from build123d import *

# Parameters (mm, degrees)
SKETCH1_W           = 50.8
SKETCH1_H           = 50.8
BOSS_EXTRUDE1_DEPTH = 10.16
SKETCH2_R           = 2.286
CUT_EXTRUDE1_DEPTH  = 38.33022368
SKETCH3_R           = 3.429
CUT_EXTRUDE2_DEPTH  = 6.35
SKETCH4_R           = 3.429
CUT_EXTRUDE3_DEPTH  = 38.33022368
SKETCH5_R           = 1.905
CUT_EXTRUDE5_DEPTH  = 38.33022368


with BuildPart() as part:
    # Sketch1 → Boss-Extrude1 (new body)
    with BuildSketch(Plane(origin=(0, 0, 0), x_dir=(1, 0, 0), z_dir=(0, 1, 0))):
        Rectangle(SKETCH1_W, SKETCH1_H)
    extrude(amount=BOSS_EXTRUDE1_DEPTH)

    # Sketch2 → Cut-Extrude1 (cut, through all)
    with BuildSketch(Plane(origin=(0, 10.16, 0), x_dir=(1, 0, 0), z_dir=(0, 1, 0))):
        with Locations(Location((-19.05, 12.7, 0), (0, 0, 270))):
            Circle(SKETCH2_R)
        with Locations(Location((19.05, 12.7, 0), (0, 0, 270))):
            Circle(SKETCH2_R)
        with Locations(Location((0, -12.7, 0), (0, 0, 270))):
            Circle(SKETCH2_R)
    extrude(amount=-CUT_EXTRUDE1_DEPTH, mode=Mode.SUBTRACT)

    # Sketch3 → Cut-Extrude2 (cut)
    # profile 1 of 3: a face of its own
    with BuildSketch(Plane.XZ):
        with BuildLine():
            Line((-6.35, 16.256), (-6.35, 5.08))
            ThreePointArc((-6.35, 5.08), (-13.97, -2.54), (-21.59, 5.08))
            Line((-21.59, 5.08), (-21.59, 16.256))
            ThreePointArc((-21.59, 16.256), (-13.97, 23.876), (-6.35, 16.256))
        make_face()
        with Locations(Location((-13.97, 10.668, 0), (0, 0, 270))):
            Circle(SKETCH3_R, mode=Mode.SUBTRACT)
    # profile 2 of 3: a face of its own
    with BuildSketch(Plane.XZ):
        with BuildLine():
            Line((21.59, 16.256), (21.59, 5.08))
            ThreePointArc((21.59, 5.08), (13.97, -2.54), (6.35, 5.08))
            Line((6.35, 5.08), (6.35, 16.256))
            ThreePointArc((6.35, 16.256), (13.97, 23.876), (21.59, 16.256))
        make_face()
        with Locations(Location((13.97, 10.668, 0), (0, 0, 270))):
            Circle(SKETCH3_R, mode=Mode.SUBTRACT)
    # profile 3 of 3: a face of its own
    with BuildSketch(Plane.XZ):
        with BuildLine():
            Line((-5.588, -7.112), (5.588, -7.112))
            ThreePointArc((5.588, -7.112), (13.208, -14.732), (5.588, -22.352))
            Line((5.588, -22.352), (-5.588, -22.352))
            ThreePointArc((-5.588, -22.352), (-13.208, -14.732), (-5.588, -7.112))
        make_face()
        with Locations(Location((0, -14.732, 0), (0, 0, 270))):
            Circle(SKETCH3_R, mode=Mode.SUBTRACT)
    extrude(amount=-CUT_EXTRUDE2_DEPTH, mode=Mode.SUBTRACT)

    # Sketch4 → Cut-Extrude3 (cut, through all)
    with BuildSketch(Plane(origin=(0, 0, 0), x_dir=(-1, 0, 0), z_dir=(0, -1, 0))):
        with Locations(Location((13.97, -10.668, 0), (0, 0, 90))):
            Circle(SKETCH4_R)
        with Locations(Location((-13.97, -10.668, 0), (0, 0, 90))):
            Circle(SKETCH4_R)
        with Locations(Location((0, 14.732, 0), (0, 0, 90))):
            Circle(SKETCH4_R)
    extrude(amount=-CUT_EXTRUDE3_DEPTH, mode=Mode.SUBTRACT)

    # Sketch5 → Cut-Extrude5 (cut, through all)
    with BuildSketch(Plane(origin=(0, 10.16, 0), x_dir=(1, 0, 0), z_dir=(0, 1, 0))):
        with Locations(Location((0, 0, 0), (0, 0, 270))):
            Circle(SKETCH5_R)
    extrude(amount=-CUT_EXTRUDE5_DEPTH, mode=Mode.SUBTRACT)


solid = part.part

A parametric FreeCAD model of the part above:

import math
import FreeCAD as App
import Part
import Sketcher
from FreeCAD import Vector
Q = App.Units.Quantity


def add_polygon(sketch, points):
    """Adds a closed chain of lines whose ends are joined by coincident constraints."""
    first, n = sketch.GeometryCount, len(points)
    for a, b in zip(points, points[1:] + points[:1]):
        sketch.addGeometry(Part.LineSegment(App.Vector(*a, 0), App.Vector(*b, 0)), False)
    for i in range(n):
        sketch.addConstraint(Sketcher.Constraint("Coincident", first + i, 2, first + (i + 1) % n, 1))

doc = App.newDocument("Part")
params = doc.addObject("Spreadsheet::Sheet", "Params")
for row, (alias, value) in enumerate([
    ("sketch1_width", "2 in"),
    ("pad1_length", "0.4 in"),
    ("sketch2_diameter", "0.18 in"),
    ("sketch3_radius", "0.3 in"),
    ("sketch3_diameter", "0.27 in"),
    ("sketch3_width", "0.44 in"),
    ("pocket2_length", "0.25 in"),
    ("sketch4_diameter", "0.27 in"),
    ("sketch5_diameter", "0.15 in"),
], start=1):
    params.set(f"A{row}", alias)
    params.set(f"B{row}", "=" + value)
    params.setAlias(f"B{row}", alias)

body = doc.addObject("PartDesign::Body", "Body")

# Sketch on XZ plane
sketch1 = body.newObject("Sketcher::SketchObject", "Sketch")
sketch1.AttachmentSupport = (doc.getObject("XZ_Plane"), [""])
sketch1.MapMode = "FlatFace"
add_polygon(sketch1, [(-25.4, -25.4), (-25.4, 25.4), (25.4, 25.4), (25.4, -25.4)])  # lines 0-3
sketch1.addConstraint([
    Sketcher.Constraint("Vertical", 0),
    Sketcher.Constraint("Horizontal", 1),
    Sketcher.Constraint("Vertical", 2),
    Sketcher.Constraint("Horizontal", 3),
    Sketcher.Constraint("Symmetric", 0, 2, 2, 2, -1, 1),
    Sketcher.Constraint("Equal", 3, 0),
    Sketcher.Constraint("DistanceX", 1, 1, 1, 2, Q("2 in")),
])
sketch1.setExpression("Constraints[10]", "Params.sketch1_width")
pad1 = body.newObject("PartDesign::Pad", "Pad")
pad1.Profile = sketch1
pad1.setExpression("Length", "Params.pad1_length")
pad1.Reversed = True

# Sketch on XZ plane
sketch2 = body.newObject("Sketcher::SketchObject", "Sketch001")
sketch2.AttachmentSupport = (doc.getObject("XZ_Plane"), [""])
sketch2.MapMode = "FlatFace"
sketch2.AttachmentOffset = App.Placement(Vector(0, 0, -0.4 * 25.4), App.Rotation())
sketch2.addGeometry([
    Part.Circle(Vector(-19.05, -12.7, 0), Vector(0, 0, 1), 2.286),
    Part.Circle(Vector(19.05, -12.7, 0), Vector(0, 0, 1), 2.286),
    Part.Circle(Vector(0, 12.7, 0), Vector(0, 0, 1), 2.286),
], False)
sketch2.addConstraint([
    Sketcher.Constraint("Equal", 0, 1),
    Sketcher.Constraint("Equal", 1, 2),
    Sketcher.Constraint("Symmetric", 0, 3, 1, 3, -2),
    Sketcher.Constraint("PointOnObject", 2, 3, -2),
    Sketcher.Constraint("Diameter", 0, Q("0.18 in")),
    Sketcher.Constraint("DistanceY", 0, 3, 2, 3, Q("1 in")),
    Sketcher.Constraint("DistanceY", 0, 3, -1, 1, Q("0.5 in")),
    Sketcher.Constraint("DistanceX", 0, 3, 1, 3, Q("1.5 in")),
])
sketch2.setExpression("Constraints[4]", "Params.sketch2_diameter")
pocket1 = body.newObject("PartDesign::Pocket", "Pocket")
pocket1.Profile = sketch2
pocket1.Type = "ThroughAll"
pocket1.Reversed = True

# Sketch on XZ plane
sketch3 = body.newObject("Sketcher::SketchObject", "Sketch002")
sketch3.AttachmentSupport = (doc.getObject("XZ_Plane"), [""])
sketch3.MapMode = "FlatFace"
sketch3.addGeometry([
    Part.LineSegment(Vector(-6.35, 5.08, 0), Vector(-6.35, 16.256, 0)),  # 0
    Part.ArcOfCircle(Part.Circle(Vector(-13.97, 16.256, 0), Vector(0, 0, 1), 7.62), math.radians(0), math.radians(180)),  # 1
    Part.LineSegment(Vector(-21.59, 16.256, 0), Vector(-21.59, 5.08, 0)),  # 2
    Part.ArcOfCircle(Part.Circle(Vector(-13.97, 5.08, 0), Vector(0, 0, 1), 7.62), math.radians(180), math.radians(360)),  # 3
    Part.Circle(Vector(-13.97, 10.668, 0), Vector(0, 0, 1), 3.429),  # 4
    Part.LineSegment(Vector(21.59, 5.08, 0), Vector(21.59, 16.256, 0)),  # 5
    Part.ArcOfCircle(Part.Circle(Vector(13.97, 16.256, 0), Vector(0, 0, 1), 7.62), math.radians(0), math.radians(180)),  # 6
    Part.LineSegment(Vector(6.35, 16.256, 0), Vector(6.35, 5.08, 0)),  # 7
    Part.ArcOfCircle(Part.Circle(Vector(13.97, 5.08, 0), Vector(0, 0, 1), 7.62), math.radians(180), math.radians(360)),  # 8
    Part.Circle(Vector(13.97, 10.668, 0), Vector(0, 0, 1), 3.429),  # 9
    Part.LineSegment(Vector(5.588, -7.112, 0), Vector(-5.588, -7.112, 0)),  # 10
    Part.ArcOfCircle(Part.Circle(Vector(-5.588, -14.732, 0), Vector(0, 0, 1), 7.62), math.radians(90), math.radians(270)),  # 11
    Part.LineSegment(Vector(-5.588, -22.352, 0), Vector(5.588, -22.352, 0)),  # 12
    Part.ArcOfCircle(Part.Circle(Vector(5.588, -14.732, 0), Vector(0, 0, 1), 7.62), math.radians(-90), math.radians(90)),  # 13
    Part.Circle(Vector(0, -14.732, 0), Vector(0, 0, 1), 3.429),  # 14
], False)
sketch3.addConstraint([
    Sketcher.Constraint("Tangent", 0, 2, 1, 1),
    Sketcher.Constraint("Tangent", 1, 2, 2, 1),
    Sketcher.Constraint("Tangent", 2, 2, 3, 1),
    Sketcher.Constraint("Tangent", 3, 2, 0, 1),
    Sketcher.Constraint("Tangent", 5, 2, 6, 1),
    Sketcher.Constraint("Tangent", 6, 2, 7, 1),
    Sketcher.Constraint("Tangent", 7, 2, 8, 1),
    Sketcher.Constraint("Tangent", 8, 2, 5, 1),
    Sketcher.Constraint("Tangent", 10, 2, 11, 1),
    Sketcher.Constraint("Tangent", 11, 2, 12, 1),
    Sketcher.Constraint("Tangent", 12, 2, 13, 1),
    Sketcher.Constraint("Tangent", 13, 2, 10, 1),
    Sketcher.Constraint("Vertical", 0),
    Sketcher.Constraint("Vertical", 2),
    Sketcher.Constraint("Vertical", 5),
    Sketcher.Constraint("Vertical", 7),
    Sketcher.Constraint("Horizontal", 10),
    Sketcher.Constraint("Horizontal", 12),
    Sketcher.Constraint("Equal", 3, 6),
    Sketcher.Constraint("Equal", 4, 9),
    Sketcher.Constraint("Equal", 8, 11),
    Sketcher.Constraint("Equal", 9, 14),
    Sketcher.Constraint("Symmetric", 1, 3, 6, 3, -2),
    Sketcher.Constraint("Symmetric", 4, 3, 9, 3, -2),
    Sketcher.Constraint("PointOnObject", 14, 3, -2),
    Sketcher.Constraint("Horizontal", 3, 3, 8, 3),
    Sketcher.Constraint("Horizontal", 13, 3, 14, 3),
    Sketcher.Constraint("Vertical", 3, 3, 4, 3),
    Sketcher.Constraint("Equal", 12, 0),
    Sketcher.Constraint("Radius", 1, Q("0.3 in")),
    Sketcher.Constraint("Diameter", 4, Q("0.27 in")),
    Sketcher.Constraint("DistanceY", 11, 3, 4, 3, Q("1 in")),
    Sketcher.Constraint("DistanceX", 10, 2, 10, 1, Q("0.44 in")),
    Sketcher.Constraint("DistanceY", -1, 1, 3, 3, Q("0.2 in")),
    Sketcher.Constraint("DistanceX", 1, 3, 6, 3, Q("1.1 in")),
    Sketcher.Constraint("DistanceY", -1, 1, 4, 3, Q("0.42 in")),
    Sketcher.Constraint("DistanceX", 11, 3, -1, 1, Q("0.22 in")),
])
sketch3.setExpression("Constraints[29]", "Params.sketch3_radius")
sketch3.setExpression("Constraints[30]", "Params.sketch3_diameter")
sketch3.setExpression("Constraints[32]", "Params.sketch3_width")
pocket2 = body.newObject("PartDesign::Pocket", "Pocket001")
pocket2.Profile = sketch3
pocket2.setExpression("Length", "Params.pocket2_length")

# Sketch on XZ plane
sketch4 = body.newObject("Sketcher::SketchObject", "Sketch003")
sketch4.AttachmentSupport = (doc.getObject("XZ_Plane"), [""])
sketch4.MapMode = "FlatFace"
sketch4.addGeometry([
    Part.Circle(Vector(-13.97, 10.668, 0), Vector(0, 0, 1), 3.429),
    Part.Circle(Vector(13.97, 10.668, 0), Vector(0, 0, 1), 3.429),
    Part.Circle(Vector(0, -14.732, 0), Vector(0, 0, 1), 3.429),
], False)
sketch4.addConstraint([
    Sketcher.Constraint("Equal", 0, 1),
    Sketcher.Constraint("Equal", 1, 2),
    Sketcher.Constraint("Symmetric", 0, 3, 1, 3, -2),
    Sketcher.Constraint("PointOnObject", 2, 3, -2),
    Sketcher.Constraint("Diameter", 0, Q("0.27 in")),
    Sketcher.Constraint("DistanceY", 2, 3, 0, 3, Q("1 in")),
    Sketcher.Constraint("DistanceX", 0, 3, 1, 3, Q("1.1 in")),
    Sketcher.Constraint("DistanceY", -1, 1, 0, 3, Q("0.42 in")),
])
sketch4.setExpression("Constraints[4]", "Params.sketch4_diameter")
pocket3 = body.newObject("PartDesign::Pocket", "Pocket002")
pocket3.Profile = sketch4
pocket3.Type = "ThroughAll"

# Sketch on XZ plane
sketch5 = body.newObject("Sketcher::SketchObject", "Sketch004")
sketch5.AttachmentSupport = (doc.getObject("XZ_Plane"), [""])
sketch5.MapMode = "FlatFace"
sketch5.AttachmentOffset = App.Placement(Vector(0, 0, -0.4 * 25.4), App.Rotation())
sketch5.addGeometry(Part.Circle(Vector(0, 0, 0), Vector(0, 0, 1), 1.905), False)
sketch5.addConstraint([
    Sketcher.Constraint("Coincident", 0, 3, -1, 1),
    Sketcher.Constraint("Diameter", 0, Q("0.15 in")),
])
sketch5.setExpression("Constraints[1]", "Params.sketch5_diameter")
pocket4 = body.newObject("PartDesign::Pocket", "Pocket003")
pocket4.Profile = sketch5
pocket4.Type = "ThroughAll"
pocket4.Reversed = True

doc.recompute()
